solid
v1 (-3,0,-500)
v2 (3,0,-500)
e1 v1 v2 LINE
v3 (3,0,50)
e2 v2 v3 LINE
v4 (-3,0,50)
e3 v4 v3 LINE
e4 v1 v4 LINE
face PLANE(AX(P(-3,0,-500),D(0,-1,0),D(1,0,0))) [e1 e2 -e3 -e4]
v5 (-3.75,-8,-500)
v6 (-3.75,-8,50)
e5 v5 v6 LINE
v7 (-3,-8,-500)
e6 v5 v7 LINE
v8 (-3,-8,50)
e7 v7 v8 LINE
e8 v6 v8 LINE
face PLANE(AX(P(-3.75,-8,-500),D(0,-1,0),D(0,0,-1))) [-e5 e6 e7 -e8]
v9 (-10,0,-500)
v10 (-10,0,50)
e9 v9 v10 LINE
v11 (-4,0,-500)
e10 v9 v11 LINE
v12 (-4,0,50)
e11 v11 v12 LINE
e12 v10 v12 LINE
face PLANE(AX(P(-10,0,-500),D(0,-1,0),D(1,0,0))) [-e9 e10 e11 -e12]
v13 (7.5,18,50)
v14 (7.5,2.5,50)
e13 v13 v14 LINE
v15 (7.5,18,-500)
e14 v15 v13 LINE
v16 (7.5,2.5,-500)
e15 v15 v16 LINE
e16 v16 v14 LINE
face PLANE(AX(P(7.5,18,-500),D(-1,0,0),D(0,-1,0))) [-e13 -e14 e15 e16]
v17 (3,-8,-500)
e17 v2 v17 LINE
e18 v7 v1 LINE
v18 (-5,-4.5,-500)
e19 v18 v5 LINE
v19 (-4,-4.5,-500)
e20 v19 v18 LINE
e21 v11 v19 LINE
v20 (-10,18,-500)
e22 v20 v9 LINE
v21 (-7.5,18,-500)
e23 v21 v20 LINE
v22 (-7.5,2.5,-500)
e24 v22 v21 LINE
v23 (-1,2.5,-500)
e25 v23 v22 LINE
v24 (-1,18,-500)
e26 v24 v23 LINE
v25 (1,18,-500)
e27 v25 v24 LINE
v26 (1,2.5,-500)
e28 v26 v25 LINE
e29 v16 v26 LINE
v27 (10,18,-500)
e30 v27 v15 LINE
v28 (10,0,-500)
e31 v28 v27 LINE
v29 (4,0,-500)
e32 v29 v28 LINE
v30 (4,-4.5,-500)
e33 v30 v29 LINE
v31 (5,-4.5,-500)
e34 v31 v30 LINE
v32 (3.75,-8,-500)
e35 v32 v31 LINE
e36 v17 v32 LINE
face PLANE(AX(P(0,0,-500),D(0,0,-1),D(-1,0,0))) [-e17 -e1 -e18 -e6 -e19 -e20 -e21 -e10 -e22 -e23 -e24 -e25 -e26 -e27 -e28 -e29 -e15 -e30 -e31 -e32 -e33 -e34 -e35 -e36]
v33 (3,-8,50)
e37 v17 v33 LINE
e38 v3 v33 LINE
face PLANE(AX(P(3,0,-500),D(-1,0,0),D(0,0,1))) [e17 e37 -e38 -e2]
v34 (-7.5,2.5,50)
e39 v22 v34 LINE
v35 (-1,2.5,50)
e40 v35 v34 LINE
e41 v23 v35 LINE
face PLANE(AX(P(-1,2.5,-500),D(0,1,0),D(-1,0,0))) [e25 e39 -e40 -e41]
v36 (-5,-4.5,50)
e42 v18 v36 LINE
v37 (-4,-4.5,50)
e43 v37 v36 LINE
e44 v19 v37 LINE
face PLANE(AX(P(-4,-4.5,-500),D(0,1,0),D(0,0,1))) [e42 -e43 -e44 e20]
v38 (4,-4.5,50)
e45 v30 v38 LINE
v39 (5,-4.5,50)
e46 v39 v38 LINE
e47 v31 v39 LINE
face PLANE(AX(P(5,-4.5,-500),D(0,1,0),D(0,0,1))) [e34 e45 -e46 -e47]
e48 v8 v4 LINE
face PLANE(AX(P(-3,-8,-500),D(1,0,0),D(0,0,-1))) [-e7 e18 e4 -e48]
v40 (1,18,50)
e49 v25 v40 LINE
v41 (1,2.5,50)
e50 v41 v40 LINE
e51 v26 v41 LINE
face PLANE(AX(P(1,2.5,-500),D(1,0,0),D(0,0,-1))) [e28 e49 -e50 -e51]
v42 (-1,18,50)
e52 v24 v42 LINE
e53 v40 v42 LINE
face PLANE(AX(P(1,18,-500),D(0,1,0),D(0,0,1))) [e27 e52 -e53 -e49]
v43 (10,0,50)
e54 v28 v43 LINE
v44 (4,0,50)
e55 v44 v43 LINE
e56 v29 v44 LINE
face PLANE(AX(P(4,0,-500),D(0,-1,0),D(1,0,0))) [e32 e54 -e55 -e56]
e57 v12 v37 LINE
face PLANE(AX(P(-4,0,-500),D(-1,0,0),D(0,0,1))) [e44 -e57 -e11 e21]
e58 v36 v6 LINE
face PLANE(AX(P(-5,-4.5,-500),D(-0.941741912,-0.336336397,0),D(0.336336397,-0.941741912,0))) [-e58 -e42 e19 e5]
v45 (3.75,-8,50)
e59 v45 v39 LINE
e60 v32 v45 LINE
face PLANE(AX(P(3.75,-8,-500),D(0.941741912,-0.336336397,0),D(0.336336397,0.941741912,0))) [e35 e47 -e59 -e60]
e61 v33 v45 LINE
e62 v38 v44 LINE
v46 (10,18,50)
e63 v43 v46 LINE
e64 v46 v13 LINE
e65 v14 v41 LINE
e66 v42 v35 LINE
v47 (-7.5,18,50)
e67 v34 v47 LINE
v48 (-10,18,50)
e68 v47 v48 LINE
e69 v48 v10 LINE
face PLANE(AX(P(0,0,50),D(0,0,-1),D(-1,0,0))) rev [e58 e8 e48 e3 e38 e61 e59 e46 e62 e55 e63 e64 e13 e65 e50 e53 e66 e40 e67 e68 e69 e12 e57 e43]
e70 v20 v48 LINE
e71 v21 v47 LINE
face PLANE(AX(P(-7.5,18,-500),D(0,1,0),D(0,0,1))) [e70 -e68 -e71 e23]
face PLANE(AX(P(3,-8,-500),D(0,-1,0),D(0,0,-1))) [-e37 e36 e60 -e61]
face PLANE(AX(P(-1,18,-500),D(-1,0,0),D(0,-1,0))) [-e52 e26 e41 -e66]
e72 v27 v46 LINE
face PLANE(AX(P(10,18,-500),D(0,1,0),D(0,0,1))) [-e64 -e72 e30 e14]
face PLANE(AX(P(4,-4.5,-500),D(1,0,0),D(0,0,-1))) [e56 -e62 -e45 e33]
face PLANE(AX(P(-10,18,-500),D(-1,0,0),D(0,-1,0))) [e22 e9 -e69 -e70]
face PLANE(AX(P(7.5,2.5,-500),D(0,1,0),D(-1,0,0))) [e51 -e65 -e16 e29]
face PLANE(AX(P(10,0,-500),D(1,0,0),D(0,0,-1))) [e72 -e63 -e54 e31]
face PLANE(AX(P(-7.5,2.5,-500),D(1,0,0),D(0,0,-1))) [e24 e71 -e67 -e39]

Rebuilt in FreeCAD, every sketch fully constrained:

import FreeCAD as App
import Part
import Sketcher
Q = App.Units.Quantity

doc = App.newDocument("Part")
body = doc.addObject("PartDesign::Body", "Body")

# Sketch on XY plane
sketch1 = body.newObject("Sketcher::SketchObject", "Sketch")
sketch1.AttachmentSupport = (doc.getObject("XY_Plane"), [""])
sketch1.MapMode = "FlatFace"
sketch1.AttachmentOffset = App.Placement(App.Vector(0, 0, 50), App.Rotation())
sketch1.addGeometry([
    Part.LineSegment(App.Vector(-1, 2.5, 0), App.Vector(-7.5, 2.5, 0)),  # 0
    Part.LineSegment(App.Vector(-7.5, 2.5, 0), App.Vector(-7.5, 18, 0)),  # 1
    Part.LineSegment(App.Vector(-7.5, 18, 0), App.Vector(-10, 18, 0)),  # 2
    Part.LineSegment(App.Vector(-10, 18, 0), App.Vector(-10, 0, 0)),  # 3
    Part.LineSegment(App.Vector(-10, 0, 0), App.Vector(-4, 0, 0)),  # 4
    Part.LineSegment(App.Vector(-4, 0, 0), App.Vector(-4, -4.5, 0)),  # 5
    Part.LineSegment(App.Vector(-4, -4.5, 0), App.Vector(-5, -4.5, 0)),  # 6
    Part.LineSegment(App.Vector(-5, -4.5, 0), App.Vector(-3.8, -8, 0)),  # 7
    Part.LineSegment(App.Vector(-3.8, -8, 0), App.Vector(-3, -8, 0)),  # 8
    Part.LineSegment(App.Vector(-3, -8, 0), App.Vector(-3, 0, 0)),  # 9
    Part.LineSegment(App.Vector(-3, 0, 0), App.Vector(3, 0, 0)),  # 10
    Part.LineSegment(App.Vector(3, 0, 0), App.Vector(3, -8, 0)),  # 11
    Part.LineSegment(App.Vector(3, -8, 0), App.Vector(3.8, -8, 0)),  # 12
    Part.LineSegment(App.Vector(3.8, -8, 0), App.Vector(5, -4.5, 0)),  # 13
    Part.LineSegment(App.Vector(5, -4.5, 0), App.Vector(4, -4.5, 0)),  # 14
    Part.LineSegment(App.Vector(4, -4.5, 0), App.Vector(4, 0, 0)),  # 15
    Part.LineSegment(App.Vector(4, 0, 0), App.Vector(10, 0, 0)),  # 16
    Part.LineSegment(App.Vector(10, 0, 0), App.Vector(10, 18, 0)),  # 17
    Part.LineSegment(App.Vector(10, 18, 0), App.Vector(7.5, 18, 0)),  # 18
    Part.LineSegment(App.Vector(7.5, 18, 0), App.Vector(7.5, 2.5, 0)),  # 19
    Part.LineSegment(App.Vector(7.5, 2.5, 0), App.Vector(1, 2.5, 0)),  # 20
    Part.LineSegment(App.Vector(1, 2.5, 0), App.Vector(1, 18, 0)),  # 21
    Part.LineSegment(App.Vector(1, 18, 0), App.Vector(-1, 18, 0)),  # 22
    Part.LineSegment(App.Vector(-1, 18, 0), App.Vector(-1, 2.5, 0)),  # 23
], False)
sketch1.addConstraint([
    Sketcher.Constraint("Coincident", 0, 2, 1, 1),
    Sketcher.Constraint("Coincident", 1, 2, 2, 1),
    Sketcher.Constraint("Coincident", 2, 2, 3, 1),
    Sketcher.Constraint("Coincident", 3, 2, 4, 1),
    Sketcher.Constraint("Coincident", 4, 2, 5, 1),
    Sketcher.Constraint("Coincident", 5, 2, 6, 1),
    Sketcher.Constraint("Coincident", 6, 2, 7, 1),
    Sketcher.Constraint("Coincident", 7, 2, 8, 1),
    Sketcher.Constraint("Coincident", 8, 2, 9, 1),
    Sketcher.Constraint("Coincident", 9, 2, 10, 1),
    Sketcher.Constraint("Coincident", 10, 2, 11, 1),
    Sketcher.Constraint("Coincident", 11, 2, 12, 1),
    Sketcher.Constraint("Coincident", 12, 2, 13, 1),
    Sketcher.Constraint("Coincident", 13, 2, 14, 1),
    Sketcher.Constraint("Coincident", 14, 2, 15, 1),
    Sketcher.Constraint("Coincident", 15, 2, 16, 1),
    Sketcher.Constraint("Coincident", 16, 2, 17, 1),
    Sketcher.Constraint("Coincident", 17, 2, 18, 1),
    Sketcher.Constraint("Coincident", 18, 2, 19, 1),
    Sketcher.Constraint("Coincident", 19, 2, 20, 1),
    Sketcher.Constraint("Coincident", 20, 2, 21, 1),
    Sketcher.Constraint("Coincident", 21, 2, 22, 1),
    Sketcher.Constraint("Coincident", 22, 2, 23, 1),
    Sketcher.Constraint("Coincident", 23, 2, 0, 1),
    Sketcher.Constraint("Horizontal", 0),
    Sketcher.Constraint("Vertical", 1),
    Sketcher.Constraint("Horizontal", 2),
    Sketcher.Constraint("Vertical", 3),
    Sketcher.Constraint("Horizontal", 4),
    Sketcher.Constraint("Vertical", 5),
    Sketcher.Constraint("Horizontal", 6),
    Sketcher.Constraint("Horizontal", 8),
    Sketcher.Constraint("Vertical", 9),
    Sketcher.Constraint("Horizontal", 10),
    Sketcher.Constraint("Vertical", 11),
    Sketcher.Constraint("Horizontal", 12),
    Sketcher.Constraint("Horizontal", 14),
    Sketcher.Constraint("Vertical", 15),
    Sketcher.Constraint("Horizontal", 16),
    Sketcher.Constraint("Vertical", 17),
    Sketcher.Constraint("Horizontal", 18),
    Sketcher.Constraint("Vertical", 19),
    Sketcher.Constraint("Horizontal", 20),
    Sketcher.Constraint("Vertical", 21),
    Sketcher.Constraint("Horizontal", 22),
    Sketcher.Constraint("Vertical", 23),
    Sketcher.Constraint("Symmetric", 9, 2, 10, 2, -1, 1),
    Sketcher.Constraint("Symmetric", 4, 2, 15, 2, -1, 1),
    Sketcher.Constraint("Symmetric", 7, 2, 12, 2, -2),
    Sketcher.Constraint("Symmetric", 6, 2, 13, 2, -2),
    Sketcher.Constraint("Symmetric", 3, 2, 16, 2, -2),
    Sketcher.Constraint("Symmetric", 1, 2, 18, 2, -2),
    Sketcher.Constraint("Symmetric", 20, 2, 23, 2, -2),
    Sketcher.Constraint("Horizontal", 18, 2, 21, 2),
    Sketcher.Constraint("Equal", 4, 10),
    Sketcher.Constraint("DistanceX", 4, 1, 4, 2, Q("6 mm")),
    Sketcher.Constraint("DistanceX", 6, 2, 6, 1, Q("1 mm")),
    Sketcher.Constraint("DistanceX", 22, 2, 22, 1, Q("2 mm")),
    Sketcher.Constraint("DistanceY", 3, 2, 3, 1, Q("18 mm")),
    Sketcher.Constraint("DistanceY", 9, 1, 9, 2, Q("8 mm")),
    Sketcher.Constraint("DistanceX", 0, 2, 0, 1, Q("6.5 mm")),
    Sketcher.Constraint("DistanceX", 2, 2, 2, 1, Q("2.5 mm")),
    Sketcher.Constraint("DistanceY", 1, 1, 1, 2, Q("15.5 mm")),
    Sketcher.Constraint("DistanceY", 5, 2, 5, 1, Q("4.5 mm")),
    Sketcher.Constraint("DistanceX", 8, 1, 8, 2, Q("0.75 mm")),
])
pad1 = body.newObject("PartDesign::Pad", "Pad")
pad1.Profile = sketch1
pad1.Length = 550
pad1.Reversed = True

doc.recompute()
